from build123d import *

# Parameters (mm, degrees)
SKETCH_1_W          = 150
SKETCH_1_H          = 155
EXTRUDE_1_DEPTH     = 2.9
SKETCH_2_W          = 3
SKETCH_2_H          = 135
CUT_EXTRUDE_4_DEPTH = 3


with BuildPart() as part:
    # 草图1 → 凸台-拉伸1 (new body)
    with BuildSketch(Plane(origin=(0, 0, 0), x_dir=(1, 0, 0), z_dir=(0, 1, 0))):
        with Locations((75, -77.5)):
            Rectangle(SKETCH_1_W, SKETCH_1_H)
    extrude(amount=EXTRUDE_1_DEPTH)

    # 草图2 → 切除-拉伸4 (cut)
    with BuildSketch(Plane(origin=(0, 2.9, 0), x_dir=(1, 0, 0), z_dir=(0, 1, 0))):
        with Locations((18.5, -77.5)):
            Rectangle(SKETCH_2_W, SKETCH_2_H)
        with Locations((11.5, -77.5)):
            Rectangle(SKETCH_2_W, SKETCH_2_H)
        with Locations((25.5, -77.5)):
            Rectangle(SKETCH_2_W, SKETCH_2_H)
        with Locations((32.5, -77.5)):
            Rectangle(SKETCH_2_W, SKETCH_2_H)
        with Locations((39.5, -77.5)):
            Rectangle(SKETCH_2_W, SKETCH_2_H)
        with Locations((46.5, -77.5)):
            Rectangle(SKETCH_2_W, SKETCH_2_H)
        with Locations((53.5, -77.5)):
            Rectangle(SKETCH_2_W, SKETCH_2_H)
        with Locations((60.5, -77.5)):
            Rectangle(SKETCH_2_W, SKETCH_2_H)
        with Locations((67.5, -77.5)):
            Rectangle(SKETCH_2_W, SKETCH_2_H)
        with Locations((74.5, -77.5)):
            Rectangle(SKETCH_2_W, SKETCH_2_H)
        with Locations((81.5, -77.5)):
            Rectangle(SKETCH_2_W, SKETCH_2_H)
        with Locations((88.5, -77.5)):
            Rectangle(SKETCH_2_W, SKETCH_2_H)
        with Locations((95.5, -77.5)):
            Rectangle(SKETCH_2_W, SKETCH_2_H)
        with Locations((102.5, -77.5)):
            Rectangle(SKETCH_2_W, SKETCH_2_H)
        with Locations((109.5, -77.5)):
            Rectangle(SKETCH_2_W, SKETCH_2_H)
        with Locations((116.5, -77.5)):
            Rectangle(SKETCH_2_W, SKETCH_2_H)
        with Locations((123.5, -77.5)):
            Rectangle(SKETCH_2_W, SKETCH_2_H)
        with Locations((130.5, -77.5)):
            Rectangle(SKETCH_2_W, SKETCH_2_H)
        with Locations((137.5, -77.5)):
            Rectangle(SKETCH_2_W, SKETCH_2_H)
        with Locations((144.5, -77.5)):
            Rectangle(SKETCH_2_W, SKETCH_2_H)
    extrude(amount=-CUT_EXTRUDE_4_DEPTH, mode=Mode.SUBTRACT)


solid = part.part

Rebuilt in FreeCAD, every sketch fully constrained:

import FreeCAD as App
import Part
import Sketcher

V = App.Vector
Q = App.Units.Quantity

doc = App.newDocument("Part")
body = doc.addObject("PartDesign::Body", "Body")

sketch1 = body.newObject("Sketcher::SketchObject", "Sketch")
sketch1.AttachmentSupport = (doc.getObject("XZ_Plane"), [""])
sketch1.MapMode = "FlatFace"
sketch1.addGeometry([
    Part.LineSegment(V(0, 0, 0), V(0, 155, 0)),
    Part.LineSegment(V(0, 155, 0), V(150, 155, 0)),
    Part.LineSegment(V(150, 155, 0), V(150, 0, 0)),
    Part.LineSegment(V(150, 0, 0), V(0, 0, 0)),
], False)
sketch1.addConstraint([
    Sketcher.Constraint("Coincident", 0, 2, 1, 1),
    Sketcher.Constraint("Coincident", 1, 2, 2, 1),
    Sketcher.Constraint("Coincident", 2, 2, 3, 1),
    Sketcher.Constraint("Coincident", 3, 2, 0, 1),
    Sketcher.Constraint("Vertical", 0),
    Sketcher.Constraint("Horizontal", 1),
    Sketcher.Constraint("Vertical", 2),
    Sketcher.Constraint("Horizontal", 3),
    Sketcher.Constraint("Coincident", 3, 2, -1, 1),
    Sketcher.Constraint("DistanceX", 1, 1, 1, 2, Q("150 mm")),
    Sketcher.Constraint("DistanceY", 0, 1, 0, 2, Q("155 mm")),
])
pad1 = body.newObject("PartDesign::Pad", "Pad")
pad1.Profile = sketch1
pad1.Length = 2.9
pad1.Reversed = True

sketch2 = body.newObject("Sketcher::SketchObject", "Sketch001")
sketch2.AttachmentSupport = (doc.getObject("XZ_Plane"), [""])
sketch2.MapMode = "FlatFace"
sketch2.AttachmentOffset = App.Placement(V(0, 0, -2.9), App.Rotation())
sketch2.addGeometry([
    Part.LineSegment(V(17, 10, 0), V(17, 145, 0)),
    Part.LineSegment(V(17, 145, 0), V(20, 145, 0)),
    Part.LineSegment(V(20, 145, 0), V(20, 10, 0)),
    Part.LineSegment(V(20, 10, 0), V(17, 10, 0)),
    Part.LineSegment(V(10, 10, 0), V(10, 145, 0)),
    Part.LineSegment(V(10, 145, 0), V(13, 145, 0)),
    Part.LineSegment(V(13, 145, 0), V(13, 10, 0)),
    Part.LineSegment(V(13, 10, 0), V(10, 10, 0)),
    Part.LineSegment(V(24, 10, 0), V(24, 145, 0)),
    Part.LineSegment(V(24, 145, 0), V(27, 145, 0)),
    Part.LineSegment(V(27, 145, 0), V(27, 10, 0)),
    Part.LineSegment(V(27, 10, 0), V(24, 10, 0)),
    Part.LineSegment(V(31, 10, 0), V(31, 145, 0)),
    Part.LineSegment(V(31, 145, 0), V(34, 145, 0)),
    Part.LineSegment(V(34, 145, 0), V(34, 10, 0)),
    Part.LineSegment(V(34, 10, 0), V(31, 10, 0)),
    Part.LineSegment(V(38, 10, 0), V(38, 145, 0)),
    Part.LineSegment(V(38, 145, 0), V(41, 145, 0)),
    Part.LineSegment(V(41, 145, 0), V(41, 10, 0)),
    Part.LineSegment(V(41, 10, 0), V(38, 10, 0)),
    Part.LineSegment(V(45, 10, 0), V(45, 145, 0)),
    Part.LineSegment(V(45, 145, 0), V(48, 145, 0)),
    Part.LineSegment(V(48, 145, 0), V(48, 10, 0)),
    Part.LineSegment(V(48, 10, 0), V(45, 10, 0)),
    Part.LineSegment(V(52, 10, 0), V(52, 145, 0)),
    Part.LineSegment(V(52, 145, 0), V(55, 145, 0)),
    Part.LineSegment(V(55, 145, 0), V(55, 10, 0)),
    Part.LineSegment(V(55, 10, 0), V(52, 10, 0)),
    Part.LineSegment(V(59, 10, 0), V(59, 145, 0)),
    Part.LineSegment(V(59, 145, 0), V(62, 145, 0)),
    Part.LineSegment(V(62, 145, 0), V(62, 10, 0)),
    Part.LineSegment(V(62, 10, 0), V(59, 10, 0)),
    Part.LineSegment(V(66, 10, 0), V(66, 145, 0)),
    Part.LineSegment(V(66, 145, 0), V(69, 145, 0)),
    Part.LineSegment(V(69, 145, 0), V(69, 10, 0)),
    Part.LineSegment(V(69, 10, 0), V(66, 10, 0)),
    Part.LineSegment(V(73, 10, 0), V(73, 145, 0)),
    Part.LineSegment(V(73, 145, 0), V(76, 145, 0)),
    Part.LineSegment(V(76, 145, 0), V(76, 10, 0)),
    Part.LineSegment(V(76, 10, 0), V(73, 10, 0)),
    Part.LineSegment(V(80, 10, 0), V(80, 145, 0)),
    Part.LineSegment(V(80, 145, 0), V(83, 145, 0)),
    Part.LineSegment(V(83, 145, 0), V(83, 10, 0)),
    Part.LineSegment(V(83, 10, 0), V(80, 10, 0)),
    Part.LineSegment(V(87, 10, 0), V(87, 145, 0)),
    Part.LineSegment(V(87, 145, 0), V(90, 145, 0)),
    Part.LineSegment(V(90, 145, 0), V(90, 10, 0)),
    Part.LineSegment(V(90, 10, 0), V(87, 10, 0)),
    Part.LineSegment(V(94, 10, 0), V(94, 145, 0)),
    Part.LineSegment(V(94, 145, 0), V(97, 145, 0)),
    Part.LineSegment(V(97, 145, 0), V(97, 10, 0)),
    Part.LineSegment(V(97, 10, 0), V(94, 10, 0)),
    Part.LineSegment(V(101, 10, 0), V(101, 145, 0)),
    Part.LineSegment(V(101, 145, 0), V(104, 145, 0)),
    Part.LineSegment(V(104, 145, 0), V(104, 10, 0)),
    Part.LineSegment(V(104, 10, 0), V(101, 10, 0)),
    Part.LineSegment(V(108, 10, 0), V(108, 145, 0)),
    Part.LineSegment(V(108, 145, 0), V(111, 145, 0)),
    Part.LineSegment(V(111, 145, 0), V(111, 10, 0)),
    Part.LineSegment(V(111, 10, 0), V(108, 10, 0)),
    Part.LineSegment(V(115, 10, 0), V(115, 145, 0)),
    Part.LineSegment(V(115, 145, 0), V(118, 145, 0)),
    Part.LineSegment(V(118, 145, 0), V(118, 10, 0)),
    Part.LineSegment(V(118, 10, 0), V(115, 10, 0)),
    Part.LineSegment(V(122, 10, 0), V(122, 145, 0)),
    Part.LineSegment(V(122, 145, 0), V(125, 145, 0)),
    Part.LineSegment(V(125, 145, 0), V(125, 10, 0)),
    Part.LineSegment(V(125, 10, 0), V(122, 10, 0)),
    Part.LineSegment(V(129, 10, 0), V(129, 145, 0)),
    Part.LineSegment(V(129, 145, 0), V(132, 145, 0)),
    Part.LineSegment(V(132, 145, 0), V(132, 10, 0)),
    Part.LineSegment(V(132, 10, 0), V(129, 10, 0)),
    Part.LineSegment(V(136, 10, 0), V(136, 145, 0)),
    Part.LineSegment(V(136, 145, 0), V(139, 145, 0)),
    Part.LineSegment(V(139, 145, 0), V(139, 10, 0)),
    Part.LineSegment(V(139, 10, 0), V(136, 10, 0)),
    Part.LineSegment(V(143, 10, 0), V(143, 145, 0)),
    Part.LineSegment(V(143, 145, 0), V(146, 145, 0)),
    Part.LineSegment(V(146, 145, 0), V(146, 10, 0)),
    Part.LineSegment(V(146, 10, 0), V(143, 10, 0)),
], False)
sketch2.addConstraint([
    Sketcher.Constraint("Coincident", 0, 2, 1, 1),
    Sketcher.Constraint("Coincident", 1, 2, 2, 1),
    Sketcher.Constraint("Coincident", 2, 2, 3, 1),
    Sketcher.Constraint("Coincident", 3, 2, 0, 1),
    Sketcher.Constraint("Coincident", 4, 2, 5, 1),
    Sketcher.Constraint("Coincident", 5, 2, 6, 1),
    Sketcher.Constraint("Coincident", 6, 2, 7, 1),
    Sketcher.Constraint("Coincident", 7, 2, 4, 1),
    Sketcher.Constraint("Coincident", 8, 2, 9, 1),
    Sketcher.Constraint("Coincident", 9, 2, 10, 1),
    Sketcher.Constraint("Coincident", 10, 2, 11, 1),
    Sketcher.Constraint("Coincident", 11, 2, 8, 1),
    Sketcher.Constraint("Coincident", 12, 2, 13, 1),
    Sketcher.Constraint("Coincident", 13, 2, 14, 1),
    Sketcher.Constraint("Coincident", 14, 2, 15, 1),
    Sketcher.Constraint("Coincident", 15, 2, 12, 1),
    Sketcher.Constraint("Coincident", 16, 2, 17, 1),
    Sketcher.Constraint("Coincident", 17, 2, 18, 1),
    Sketcher.Constraint("Coincident", 18, 2, 19, 1),
    Sketcher.Constraint("Coincident", 19, 2, 16, 1),
    Sketcher.Constraint("Coincident", 20, 2, 21, 1),
    Sketcher.Constraint("Coincident", 21, 2, 22, 1),
    Sketcher.Constraint("Coincident", 22, 2, 23, 1),
    Sketcher.Constraint("Coincident", 23, 2, 20, 1),
    Sketcher.Constraint("Coincident", 24, 2, 25, 1),
    Sketcher.Constraint("Coincident", 25, 2, 26, 1),
    Sketcher.Constraint("Coincident", 26, 2, 27, 1),
    Sketcher.Constraint("Coincident", 27, 2, 24, 1),
    Sketcher.Constraint("Coincident", 28, 2, 29, 1),
    Sketcher.Constraint("Coincident", 29, 2, 30, 1),
    Sketcher.Constraint("Coincident", 30, 2, 31, 1),
    Sketcher.Constraint("Coincident", 31, 2, 28, 1),
    Sketcher.Constraint("Coincident", 32, 2, 33, 1),
    Sketcher.Constraint("Coincident", 33, 2, 34, 1),
    Sketcher.Constraint("Coincident", 34, 2, 35, 1),
    Sketcher.Constraint("Coincident", 35, 2, 32, 1),
    Sketcher.Constraint("Coincident", 36, 2, 37, 1),
    Sketcher.Constraint("Coincident", 37, 2, 38, 1),
    Sketcher.Constraint("Coincident", 38, 2, 39, 1),
    Sketcher.Constraint("Coincident", 39, 2, 36, 1),
    Sketcher.Constraint("Coincident", 40, 2, 41, 1),
    Sketcher.Constraint("Coincident", 41, 2, 42, 1),
    Sketcher.Constraint("Coincident", 42, 2, 43, 1),
    Sketcher.Constraint("Coincident", 43, 2, 40, 1),
    Sketcher.Constraint("Coincident", 44, 2, 45, 1),
    Sketcher.Constraint("Coincident", 45, 2, 46, 1),
    Sketcher.Constraint("Coincident", 46, 2, 47, 1),
    Sketcher.Constraint("Coincident", 47, 2, 44, 1),
    Sketcher.Constraint("Coincident", 48, 2, 49, 1),
    Sketcher.Constraint("Coincident", 49, 2, 50, 1),
    Sketcher.Constraint("Coincident", 50, 2, 51, 1),
    Sketcher.Constraint("Coincident", 51, 2, 48, 1),
    Sketcher.Constraint("Coincident", 52, 2, 53, 1),
    Sketcher.Constraint("Coincident", 53, 2, 54, 1),
    Sketcher.Constraint("Coincident", 54, 2, 55, 1),
    Sketcher.Constraint("Coincident", 55, 2, 52, 1),
    Sketcher.Constraint("Coincident", 56, 2, 57, 1),
    Sketcher.Constraint("Coincident", 57, 2, 58, 1),
    Sketcher.Constraint("Coincident", 58, 2, 59, 1),
    Sketcher.Constraint("Coincident", 59, 2, 56, 1),
    Sketcher.Constraint("Coincident", 60, 2, 61, 1),
    Sketcher.Constraint("Coincident", 61, 2, 62, 1),
    Sketcher.Constraint("Coincident", 62, 2, 63, 1),
    Sketcher.Constraint("Coincident", 63, 2, 60, 1),
    Sketcher.Constraint("Coincident", 64, 2, 65, 1),
    Sketcher.Constraint("Coincident", 65, 2, 66, 1),
    Sketcher.Constraint("Coincident", 66, 2, 67, 1),
    Sketcher.Constraint("Coincident", 67, 2, 64, 1),
    Sketcher.Constraint("Coincident", 68, 2, 69, 1),
    Sketcher.Constraint("Coincident", 69, 2, 70, 1),
    Sketcher.Constraint("Coincident", 70, 2, 71, 1),
    Sketcher.Constraint("Coincident", 71, 2, 68, 1),
    Sketcher.Constraint("Coincident", 72, 2, 73, 1),
    Sketcher.Constraint("Coincident", 73, 2, 74, 1),
    Sketcher.Constraint("Coincident", 74, 2, 75, 1),
    Sketcher.Constraint("Coincident", 75, 2, 72, 1),
    Sketcher.Constraint("Coincident", 76, 2, 77, 1),
    Sketcher.Constraint("Coincident", 77, 2, 78, 1),
    Sketcher.Constraint("Coincident", 78, 2, 79, 1),
    Sketcher.Constraint("Coincident", 79, 2, 76, 1),
    Sketcher.Constraint("Vertical", 0),
    Sketcher.Constraint("Horizontal", 1),
    Sketcher.Constraint("Vertical", 2),
    Sketcher.Constraint("Horizontal", 3),
    Sketcher.Constraint("Vertical", 4),
    Sketcher.Constraint("Horizontal", 5),
    Sketcher.Constraint("Vertical", 6),
    Sketcher.Constraint("Horizontal", 7),
    Sketcher.Constraint("Vertical", 8),
    Sketcher.Constraint("Horizontal", 9),
    Sketcher.Constraint("Vertical", 10),
    Sketcher.Constraint("Horizontal", 11),
    Sketcher.Constraint("Vertical", 12),
    Sketcher.Constraint("Horizontal", 13),
    Sketcher.Constraint("Vertical", 14),
    Sketcher.Constraint("Horizontal", 15),
    Sketcher.Constraint("Vertical", 16),
    Sketcher.Constraint("Horizontal", 17),
    Sketcher.Constraint("Vertical", 18),
    Sketcher.Constraint("Horizontal", 19),
    Sketcher.Constraint("Vertical", 20),
    Sketcher.Constraint("Horizontal", 21),
    Sketcher.Constraint("Vertical", 22),
    Sketcher.Constraint("Horizontal", 23),
    Sketcher.Constraint("Vertical", 24),
    Sketcher.Constraint("Horizontal", 25),
    Sketcher.Constraint("Vertical", 26),
    Sketcher.Constraint("Horizontal", 27),
    Sketcher.Constraint("Vertical", 28),
    Sketcher.Constraint("Horizontal", 29),
    Sketcher.Constraint("Vertical", 30),
    Sketcher.Constraint("Horizontal", 31),
    Sketcher.Constraint("Vertical", 32),
    Sketcher.Constraint("Horizontal", 33),
    Sketcher.Constraint("Vertical", 34),
    Sketcher.Constraint("Horizontal", 35),
    Sketcher.Constraint("Vertical", 36),
    Sketcher.Constraint("Horizontal", 37),
    Sketcher.Constraint("Vertical", 38),
    Sketcher.Constraint("Horizontal", 39),
    Sketcher.Constraint("Vertical", 40),
    Sketcher.Constraint("Horizontal", 41),
    Sketcher.Constraint("Vertical", 42),
    Sketcher.Constraint("Horizontal", 43),
    Sketcher.Constraint("Vertical", 44),
    Sketcher.Constraint("Horizontal", 45),
    Sketcher.Constraint("Vertical", 46),
    Sketcher.Constraint("Horizontal", 47),
    Sketcher.Constraint("Vertical", 48),
    Sketcher.Constraint("Horizontal", 49),
    Sketcher.Constraint("Vertical", 50),
    Sketcher.Constraint("Horizontal", 51),
    Sketcher.Constraint("Vertical", 52),
    Sketcher.Constraint("Horizontal", 53),
    Sketcher.Constraint("Vertical", 54),
    Sketcher.Constraint("Horizontal", 55),
    Sketcher.Constraint("Vertical", 56),
    Sketcher.Constraint("Horizontal", 57),
    Sketcher.Constraint("Vertical", 58),
    Sketcher.Constraint("Horizontal", 59),
    Sketcher.Constraint("Vertical", 60),
    Sketcher.Constraint("Horizontal", 61),
    Sketcher.Constraint("Vertical", 62),
    Sketcher.Constraint("Horizontal", 63),
    Sketcher.Constraint("Vertical", 64),
    Sketcher.Constraint("Horizontal", 65),
    Sketcher.Constraint("Vertical", 66),
    Sketcher.Constraint("Horizontal", 67),
    Sketcher.Constraint("Vertical", 68),
    Sketcher.Constraint("Horizontal", 69),
    Sketcher.Constraint("Vertical", 70),
    Sketcher.Constraint("Horizontal", 71),
    Sketcher.Constraint("Vertical", 72),
    Sketcher.Constraint("Horizontal", 73),
    Sketcher.Constraint("Vertical", 74),
    Sketcher.Constraint("Horizontal", 75),
    Sketcher.Constraint("Vertical", 76),
    Sketcher.Constraint("Horizontal", 77),
    Sketcher.Constraint("Vertical", 78),
    Sketcher.Constraint("Horizontal", 79),
    Sketcher.Constraint("Horizontal", 1, 2, 4, 2),
    Sketcher.Constraint("Horizontal", 3, 2, 6, 2),
    Sketcher.Constraint("Horizontal", 5, 2, 8, 2),
    Sketcher.Constraint("Horizontal", 7, 2, 10, 2),
    Sketcher.Constraint("Horizontal", 9, 2, 12, 2),
    Sketcher.Constraint("Horizontal", 11, 2, 14, 2),
    Sketcher.Constraint("Horizontal", 13, 2, 16, 2),
    Sketcher.Constraint("Horizontal", 15, 2, 18, 2),
    Sketcher.Constraint("Horizontal", 17, 2, 20, 2),
    Sketcher.Constraint("Horizontal", 19, 2, 22, 2),
    Sketcher.Constraint("Horizontal", 21, 2, 24, 2),
    Sketcher.Constraint("Horizontal", 23, 2, 26, 2),
    Sketcher.Constraint("Horizontal", 25, 2, 28, 2),
    Sketcher.Constraint("Horizontal", 27, 2, 30, 2),
    Sketcher.Constraint("Horizontal", 29, 2, 32, 2),
    Sketcher.Constraint("Horizontal", 31, 2, 34, 2),
    Sketcher.Constraint("Horizontal", 33, 2, 36, 2),
    Sketcher.Constraint("Horizontal", 35, 2, 38, 2),
    Sketcher.Constraint("Horizontal", 37, 2, 40, 2),
    Sketcher.Constraint("Horizontal", 39, 2, 42, 2),
    Sketcher.Constraint("Horizontal", 41, 2, 44, 2),
    Sketcher.Constraint("Horizontal", 43, 2, 46, 2),
    Sketcher.Constraint("Horizontal", 45, 2, 48, 2),
    Sketcher.Constraint("Horizontal", 47, 2, 50, 2),
    Sketcher.Constraint("Horizontal", 49, 2, 52, 2),
    Sketcher.Constraint("Horizontal", 51, 2, 54, 2),
    Sketcher.Constraint("Horizontal", 53, 2, 56, 2),
    Sketcher.Constraint("Horizontal", 55, 2, 58, 2),
    Sketcher.Constraint("Horizontal", 57, 2, 60, 2),
    Sketcher.Constraint("Horizontal", 59, 2, 62, 2),
    Sketcher.Constraint("Horizontal", 61, 2, 64, 2),
    Sketcher.Constraint("Horizontal", 63, 2, 66, 2),
    Sketcher.Constraint("Horizontal", 65, 2, 68, 2),
    Sketcher.Constraint("Horizontal", 67, 2, 70, 2),
    Sketcher.Constraint("Horizontal", 69, 2, 72, 2),
    Sketcher.Constraint("Horizontal", 71, 2, 74, 2),
    Sketcher.Constraint("Horizontal", 73, 2, 76, 2),
    Sketcher.Constraint("Horizontal", 75, 2, 78, 2),
    Sketcher.Constraint("Equal", 3, 5),
    Sketcher.Constraint("Equal", 7, 9),
    Sketcher.Constraint("Equal", 11, 13),
    Sketcher.Constraint("Equal", 15, 17),
    Sketcher.Constraint("Equal", 19, 21),
    Sketcher.Constraint("Equal", 23, 25),
    Sketcher.Constraint("Equal", 27, 29),
    Sketcher.Constraint("Equal", 31, 33),
    Sketcher.Constraint("Equal", 35, 37),
    Sketcher.Constraint("Equal", 39, 41),
    Sketcher.Constraint("Equal", 43, 45),
    Sketcher.Constraint("Equal", 47, 49),
    Sketcher.Constraint("Equal", 51, 53),
    Sketcher.Constraint("Equal", 55, 57),
    Sketcher.Constraint("Equal", 59, 61),
    Sketcher.Constraint("Equal", 63, 65),
    Sketcher.Constraint("Equal", 67, 69),
    Sketcher.Constraint("Equal", 71, 73),
    Sketcher.Constraint("Equal", 75, 77),
    Sketcher.Constraint("DistanceX", 1, 1, 1, 2, Q("3 mm")),
    Sketcher.Constraint("DistanceY", 0, 1, 0, 2, Q("135 mm")),
    Sketcher.Constraint("DistanceX", -1, 1, 0, 2, Q("17 mm")),
    Sketcher.Constraint("DistanceY", -1, 1, 0, 2, Q("145 mm")),
    Sketcher.Constraint("DistanceX", -1, 1, 4, 2, Q("10 mm")),
    Sketcher.Constraint("DistanceX", -1, 1, 8, 2, Q("24 mm")),
    Sketcher.Constraint("DistanceX", -1, 1, 12, 2, Q("31 mm")),
    Sketcher.Constraint("DistanceX", -1, 1, 16, 2, Q("38 mm")),
    Sketcher.Constraint("DistanceX", -1, 1, 20, 2, Q("45 mm")),
    Sketcher.Constraint("DistanceX", -1, 1, 24, 2, Q("52 mm")),
    Sketcher.Constraint("DistanceX", -1, 1, 28, 2, Q("59 mm")),
    Sketcher.Constraint("DistanceX", -1, 1, 32, 2, Q("66 mm")),
    Sketcher.Constraint("DistanceX", -1, 1, 36, 2, Q("73 mm")),
    Sketcher.Constraint("DistanceX", -1, 1, 40, 2, Q("80 mm")),
    Sketcher.Constraint("DistanceX", -1, 1, 44, 2, Q("87 mm")),
    Sketcher.Constraint("DistanceX", -1, 1, 48, 2, Q("94 mm")),
    Sketcher.Constraint("DistanceX", -1, 1, 52, 2, Q("101 mm")),
    Sketcher.Constraint("DistanceX", -1, 1, 56, 2, Q("108 mm")),
    Sketcher.Constraint("DistanceX", -1, 1, 60, 2, Q("115 mm")),
    Sketcher.Constraint("DistanceX", -1, 1, 64, 2, Q("122 mm")),
    Sketcher.Constraint("DistanceX", -1, 1, 68, 2, Q("129 mm")),
    Sketcher.Constraint("DistanceX", -1, 1, 72, 2, Q("136 mm")),
    Sketcher.Constraint("DistanceX", -1, 1, 76, 2, Q("143 mm")),
])
pocket1 = body.newObject("PartDesign::Pocket", "Pocket")
pocket1.Profile = sketch2
pocket1.Length = 3
pocket1.Reversed = True

doc.recompute()
